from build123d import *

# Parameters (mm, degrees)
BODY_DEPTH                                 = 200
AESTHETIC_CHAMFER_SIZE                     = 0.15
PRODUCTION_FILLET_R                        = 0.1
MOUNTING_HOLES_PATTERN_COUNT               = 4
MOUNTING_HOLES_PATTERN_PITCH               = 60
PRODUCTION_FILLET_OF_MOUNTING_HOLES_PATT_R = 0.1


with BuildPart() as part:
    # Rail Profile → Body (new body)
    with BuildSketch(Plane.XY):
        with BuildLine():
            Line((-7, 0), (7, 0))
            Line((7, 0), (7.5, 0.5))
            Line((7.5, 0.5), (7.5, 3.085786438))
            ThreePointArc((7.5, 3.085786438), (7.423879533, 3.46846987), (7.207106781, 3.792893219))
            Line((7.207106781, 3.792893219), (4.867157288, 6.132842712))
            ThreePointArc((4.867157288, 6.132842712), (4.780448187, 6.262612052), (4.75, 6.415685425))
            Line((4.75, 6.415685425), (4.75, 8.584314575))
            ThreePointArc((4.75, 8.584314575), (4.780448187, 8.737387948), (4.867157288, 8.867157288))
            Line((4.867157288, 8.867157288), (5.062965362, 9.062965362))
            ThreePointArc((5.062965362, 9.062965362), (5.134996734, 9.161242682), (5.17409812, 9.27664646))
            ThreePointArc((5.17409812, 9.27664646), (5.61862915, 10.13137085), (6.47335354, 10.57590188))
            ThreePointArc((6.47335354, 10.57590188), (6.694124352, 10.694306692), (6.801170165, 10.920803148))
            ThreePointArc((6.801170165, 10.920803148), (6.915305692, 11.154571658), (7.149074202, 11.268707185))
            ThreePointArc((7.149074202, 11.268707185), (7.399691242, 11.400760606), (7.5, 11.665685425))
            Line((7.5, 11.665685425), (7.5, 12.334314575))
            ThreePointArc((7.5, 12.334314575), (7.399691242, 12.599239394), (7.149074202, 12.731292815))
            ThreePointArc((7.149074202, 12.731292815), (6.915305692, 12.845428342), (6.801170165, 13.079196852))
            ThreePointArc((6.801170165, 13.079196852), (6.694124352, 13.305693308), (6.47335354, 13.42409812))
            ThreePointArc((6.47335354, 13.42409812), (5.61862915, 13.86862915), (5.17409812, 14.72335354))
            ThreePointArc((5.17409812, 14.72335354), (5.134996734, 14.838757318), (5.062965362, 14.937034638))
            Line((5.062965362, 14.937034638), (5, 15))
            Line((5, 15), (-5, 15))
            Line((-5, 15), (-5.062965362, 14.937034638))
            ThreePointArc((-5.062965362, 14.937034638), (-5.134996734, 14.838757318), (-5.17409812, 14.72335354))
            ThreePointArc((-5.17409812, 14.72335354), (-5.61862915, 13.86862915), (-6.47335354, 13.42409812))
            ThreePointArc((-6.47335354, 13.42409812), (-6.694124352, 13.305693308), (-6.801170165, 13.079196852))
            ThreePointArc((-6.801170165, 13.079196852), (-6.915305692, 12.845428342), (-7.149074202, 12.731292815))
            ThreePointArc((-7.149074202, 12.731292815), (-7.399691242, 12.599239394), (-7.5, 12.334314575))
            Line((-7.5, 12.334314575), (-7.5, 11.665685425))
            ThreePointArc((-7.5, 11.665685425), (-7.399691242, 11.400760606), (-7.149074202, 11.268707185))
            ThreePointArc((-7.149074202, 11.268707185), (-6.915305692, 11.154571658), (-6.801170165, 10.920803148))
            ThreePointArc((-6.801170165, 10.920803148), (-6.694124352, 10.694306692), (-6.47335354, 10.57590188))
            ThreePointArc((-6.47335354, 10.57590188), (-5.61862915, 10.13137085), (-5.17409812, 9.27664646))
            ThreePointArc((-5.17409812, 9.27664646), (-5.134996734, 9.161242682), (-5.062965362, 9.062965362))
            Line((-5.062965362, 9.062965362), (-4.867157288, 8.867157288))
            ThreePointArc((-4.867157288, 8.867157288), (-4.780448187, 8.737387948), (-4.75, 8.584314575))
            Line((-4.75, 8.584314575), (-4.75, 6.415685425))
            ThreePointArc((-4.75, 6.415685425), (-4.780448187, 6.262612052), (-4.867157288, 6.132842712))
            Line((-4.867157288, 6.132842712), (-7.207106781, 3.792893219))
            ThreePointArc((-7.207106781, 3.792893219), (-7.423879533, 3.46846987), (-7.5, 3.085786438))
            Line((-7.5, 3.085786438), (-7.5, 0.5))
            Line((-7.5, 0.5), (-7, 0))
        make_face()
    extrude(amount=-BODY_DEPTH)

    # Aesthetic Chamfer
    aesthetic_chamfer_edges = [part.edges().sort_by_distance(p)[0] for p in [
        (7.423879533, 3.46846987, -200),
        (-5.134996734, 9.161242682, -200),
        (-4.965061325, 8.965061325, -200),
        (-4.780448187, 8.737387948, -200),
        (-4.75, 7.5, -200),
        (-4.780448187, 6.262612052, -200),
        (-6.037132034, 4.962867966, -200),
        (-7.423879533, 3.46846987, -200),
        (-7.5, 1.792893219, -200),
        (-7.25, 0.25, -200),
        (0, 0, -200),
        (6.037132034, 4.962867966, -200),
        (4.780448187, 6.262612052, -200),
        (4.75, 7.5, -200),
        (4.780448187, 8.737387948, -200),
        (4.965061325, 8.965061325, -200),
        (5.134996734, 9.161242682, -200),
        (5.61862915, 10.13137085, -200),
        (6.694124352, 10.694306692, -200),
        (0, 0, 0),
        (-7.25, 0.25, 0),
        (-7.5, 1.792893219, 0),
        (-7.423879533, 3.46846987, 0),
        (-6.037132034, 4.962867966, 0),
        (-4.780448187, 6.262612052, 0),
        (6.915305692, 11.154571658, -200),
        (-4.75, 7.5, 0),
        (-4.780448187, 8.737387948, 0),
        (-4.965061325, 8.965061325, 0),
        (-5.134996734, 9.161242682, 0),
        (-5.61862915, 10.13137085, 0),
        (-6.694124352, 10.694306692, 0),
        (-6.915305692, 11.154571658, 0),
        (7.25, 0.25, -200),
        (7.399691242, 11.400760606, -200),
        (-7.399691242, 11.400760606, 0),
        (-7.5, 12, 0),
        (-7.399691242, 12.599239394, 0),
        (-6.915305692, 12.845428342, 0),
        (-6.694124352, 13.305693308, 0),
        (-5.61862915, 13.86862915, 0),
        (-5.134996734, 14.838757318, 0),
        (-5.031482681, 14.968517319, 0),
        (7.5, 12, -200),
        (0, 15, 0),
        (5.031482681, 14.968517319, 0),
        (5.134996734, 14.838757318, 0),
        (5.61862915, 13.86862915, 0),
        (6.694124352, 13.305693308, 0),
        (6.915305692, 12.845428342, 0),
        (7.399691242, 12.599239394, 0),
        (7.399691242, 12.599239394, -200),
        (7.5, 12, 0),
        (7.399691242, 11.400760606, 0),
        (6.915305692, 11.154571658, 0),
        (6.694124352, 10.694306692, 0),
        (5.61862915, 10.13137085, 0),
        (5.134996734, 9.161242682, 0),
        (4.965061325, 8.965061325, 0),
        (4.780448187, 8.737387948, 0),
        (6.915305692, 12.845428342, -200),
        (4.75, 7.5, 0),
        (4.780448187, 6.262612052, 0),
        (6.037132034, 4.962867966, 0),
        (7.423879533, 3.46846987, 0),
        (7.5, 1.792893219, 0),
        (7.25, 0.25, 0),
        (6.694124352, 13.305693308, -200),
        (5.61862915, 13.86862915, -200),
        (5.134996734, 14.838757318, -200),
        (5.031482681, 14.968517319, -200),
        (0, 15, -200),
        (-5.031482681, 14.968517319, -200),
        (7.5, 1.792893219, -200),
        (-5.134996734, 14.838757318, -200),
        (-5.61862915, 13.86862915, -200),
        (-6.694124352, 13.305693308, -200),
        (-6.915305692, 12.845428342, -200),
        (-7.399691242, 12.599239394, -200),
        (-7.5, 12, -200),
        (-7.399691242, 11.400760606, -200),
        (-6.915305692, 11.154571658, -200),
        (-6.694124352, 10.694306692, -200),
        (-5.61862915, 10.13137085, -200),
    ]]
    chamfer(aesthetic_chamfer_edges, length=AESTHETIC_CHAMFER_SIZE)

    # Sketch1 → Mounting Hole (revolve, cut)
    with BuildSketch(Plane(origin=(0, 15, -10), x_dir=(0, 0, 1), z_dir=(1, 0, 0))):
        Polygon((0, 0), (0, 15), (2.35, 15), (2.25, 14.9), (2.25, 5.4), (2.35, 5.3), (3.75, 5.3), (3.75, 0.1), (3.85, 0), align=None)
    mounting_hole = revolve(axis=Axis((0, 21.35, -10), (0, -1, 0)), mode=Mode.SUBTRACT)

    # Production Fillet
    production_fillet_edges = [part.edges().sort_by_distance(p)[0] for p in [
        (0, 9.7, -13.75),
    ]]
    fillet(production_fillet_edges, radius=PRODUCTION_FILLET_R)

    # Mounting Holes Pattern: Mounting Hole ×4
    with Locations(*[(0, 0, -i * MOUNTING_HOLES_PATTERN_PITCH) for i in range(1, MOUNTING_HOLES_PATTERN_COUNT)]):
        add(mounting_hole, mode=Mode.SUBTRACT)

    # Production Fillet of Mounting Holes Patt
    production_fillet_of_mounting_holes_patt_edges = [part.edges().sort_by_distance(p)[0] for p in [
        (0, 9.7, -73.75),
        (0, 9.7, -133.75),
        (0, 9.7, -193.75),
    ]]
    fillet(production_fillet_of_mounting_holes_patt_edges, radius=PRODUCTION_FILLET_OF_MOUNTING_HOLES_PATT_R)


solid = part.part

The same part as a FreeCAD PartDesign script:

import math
import FreeCAD as App
import Part
import Sketcher
Q = App.Units.Quantity


def edges_at(feature, points):
    """Names of the edges that pass closest to the given points."""
    edges = feature.Shape.Edges
    near = lambda p: min(range(len(edges)), key=lambda i: edges[i].distToShape(Part.Vertex(*p))[0])
    return sorted({f"Edge{near(p) + 1}" for p in points})

doc = App.newDocument("Part")
body = doc.addObject("PartDesign::Body", "Body")

# Sketch on XY plane
sketch1 = body.newObject("Sketcher::SketchObject", "Sketch")
sketch1.AttachmentSupport = (doc.getObject("XY_Plane"), [""])
sketch1.MapMode = "FlatFace"
sketch1.addGeometry([
    Part.LineSegment(App.Vector(-7, 0, 0), App.Vector(7, 0, 0)),  # 0
    Part.LineSegment(App.Vector(7, 0, 0), App.Vector(7.5, 0.5, 0)),  # 1
    Part.LineSegment(App.Vector(7.5, 0.5, 0), App.Vector(7.5, 3.09, 0)),  # 2
    Part.ArcOfCircle(Part.Circle(App.Vector(6.5, 3.09, 0), App.Vector(0, 0, 1), 1), math.radians(0), math.radians(45)),  # 3
    Part.LineSegment(App.Vector(7.21, 3.79, 0), App.Vector(4.87, 6.13, 0)),  # 4
    Part.ArcOfCircle(Part.Circle(App.Vector(5.15, 6.42, 0), App.Vector(0, 0, 1), 0.4), math.radians(180), math.radians(225)),  # 5
    Part.LineSegment(App.Vector(4.75, 6.42, 0), App.Vector(4.75, 8.58, 0)),  # 6
    Part.ArcOfCircle(Part.Circle(App.Vector(5.15, 8.58, 0), App.Vector(0, 0, 1), 0.4), math.radians(135), math.radians(180)),  # 7
    Part.LineSegment(App.Vector(4.87, 8.87, 0), App.Vector(5.06, 9.06, 0)),  # 8
    Part.ArcOfCircle(Part.Circle(App.Vector(4.78, 9.35, 0), App.Vector(0, 0, 1), 0.4), math.radians(-45), math.radians(-10)),  # 9
    Part.ArcOfCircle(Part.Circle(App.Vector(6.75, 9, 0), App.Vector(0, 0, 1), 1.6), math.radians(100), math.radians(170)),  # 10
    Part.ArcOfCircle(Part.Circle(App.Vector(6.4, 10.97, 0), App.Vector(0, 0, 1), 0.4), math.radians(-80), math.radians(-7)),  # 11
    Part.ArcOfCircle(Part.Circle(App.Vector(7.2, 10.87, 0), App.Vector(0, 0, 1), 0.4), math.radians(97), math.radians(173)),  # 12
    Part.ArcOfCircle(Part.Circle(App.Vector(7.1, 11.67, 0), App.Vector(0, 0, 1), 0.4), math.radians(-83), math.radians(0)),  # 13
    Part.LineSegment(App.Vector(7.5, 11.67, 0), App.Vector(7.5, 12.33, 0)),  # 14
    Part.ArcOfCircle(Part.Circle(App.Vector(7.1, 12.33, 0), App.Vector(0, 0, 1), 0.4), math.radians(0), math.radians(83)),  # 15
    Part.ArcOfCircle(Part.Circle(App.Vector(7.2, 13.13, 0), App.Vector(0, 0, 1), 0.4), math.radians(-173), math.radians(-97)),  # 16
    Part.ArcOfCircle(Part.Circle(App.Vector(6.4, 13.03, 0), App.Vector(0, 0, 1), 0.4), math.radians(7), math.radians(80)),  # 17
    Part.ArcOfCircle(Part.Circle(App.Vector(6.75, 15, 0), App.Vector(0, 0, 1), 1.6), math.radians(-170), math.radians(-100)),  # 18
    Part.ArcOfCircle(Part.Circle(App.Vector(4.78, 14.65, 0), App.Vector(0, 0, 1), 0.4), math.radians(10), math.radians(45)),  # 19
    Part.LineSegment(App.Vector(5.06, 14.94, 0), App.Vector(5, 15, 0)),  # 20
    Part.LineSegment(App.Vector(5, 15, 0), App.Vector(-5, 15, 0)),  # 21
    Part.LineSegment(App.Vector(-5, 15, 0), App.Vector(-5.06, 14.94, 0)),  # 22
    Part.ArcOfCircle(Part.Circle(App.Vector(-4.78, 14.65, 0), App.Vector(0, 0, 1), 0.4), math.radians(135), math.radians(170)),  # 23
    Part.ArcOfCircle(Part.Circle(App.Vector(-6.75, 15, 0), App.Vector(0, 0, 1), 1.6), math.radians(-80), math.radians(-10)),  # 24
    Part.ArcOfCircle(Part.Circle(App.Vector(-6.4, 13.03, 0), App.Vector(0, 0, 1), 0.4), math.radians(100), math.radians(173)),  # 25
    Part.ArcOfCircle(Part.Circle(App.Vector(-7.2, 13.13, 0), App.Vector(0, 0, 1), 0.4), math.radians(-83), math.radians(-7)),  # 26
    Part.ArcOfCircle(Part.Circle(App.Vector(-7.1, 12.33, 0), App.Vector(0, 0, 1), 0.4), math.radians(97), math.radians(180)),  # 27
    Part.LineSegment(App.Vector(-7.5, 12.33, 0), App.Vector(-7.5, 11.67, 0)),  # 28
    Part.ArcOfCircle(Part.Circle(App.Vector(-7.1, 11.67, 0), App.Vector(0, 0, 1), 0.4), math.radians(180), math.radians(263)),  # 29
    Part.ArcOfCircle(Part.Circle(App.Vector(-7.2, 10.87, 0), App.Vector(0, 0, 1), 0.4), math.radians(7), math.radians(83)),  # 30
    Part.ArcOfCircle(Part.Circle(App.Vector(-6.4, 10.97, 0), App.Vector(0, 0, 1), 0.4), math.radians(-173), math.radians(-100)),  # 31
    Part.ArcOfCircle(Part.Circle(App.Vector(-6.75, 9, 0), App.Vector(0, 0, 1), 1.6), math.radians(10), math.radians(80)),  # 32
    Part.ArcOfCircle(Part.Circle(App.Vector(-4.78, 9.35, 0), App.Vector(0, 0, 1), 0.4), math.radians(-170), math.radians(-135)),  # 33
    Part.LineSegment(App.Vector(-5.06, 9.06, 0), App.Vector(-4.87, 8.87, 0)),  # 34
    Part.ArcOfCircle(Part.Circle(App.Vector(-5.15, 8.58, 0), App.Vector(0, 0, 1), 0.4), math.radians(0), math.radians(45)),  # 35
    Part.LineSegment(App.Vector(-4.75, 8.58, 0), App.Vector(-4.75, 6.42, 0)),  # 36
    Part.ArcOfCircle(Part.Circle(App.Vector(-5.15, 6.42, 0), App.Vector(0, 0, 1), 0.4), math.radians(-45), math.radians(0)),  # 37
    Part.LineSegment(App.Vector(-4.87, 6.13, 0), App.Vector(-7.21, 3.79, 0)),  # 38
    Part.ArcOfCircle(Part.Circle(App.Vector(-6.5, 3.09, 0), App.Vector(0, 0, 1), 1), math.radians(135), math.radians(180)),  # 39
    Part.LineSegment(App.Vector(-7.5, 3.09, 0), App.Vector(-7.5, 0.5, 0)),  # 40
    Part.LineSegment(App.Vector(-7.5, 0.5, 0), App.Vector(-7, 0, 0)),  # 41
], False)
sketch1.addConstraint([
    Sketcher.Constraint("Coincident", 0, 2, 1, 1),
    Sketcher.Constraint("Coincident", 1, 2, 2, 1),
    Sketcher.Constraint("Tangent", 2, 2, 3, 1),
    Sketcher.Constraint("Tangent", 3, 2, 4, 1),
    Sketcher.Constraint("Tangent", 4, 2, 5, 2),
    Sketcher.Constraint("Tangent", 5, 1, 6, 1),
    Sketcher.Constraint("Tangent", 6, 2, 7, 2),
    Sketcher.Constraint("Tangent", 7, 1, 8, 1),
    Sketcher.Constraint("Tangent", 8, 2, 9, 1),
    Sketcher.Constraint("Tangent", 9, 2, 10, 2),
    Sketcher.Constraint("Tangent", 10, 1, 11, 1),
    Sketcher.Constraint("Tangent", 11, 2, 12, 2),
    Sketcher.Constraint("Tangent", 12, 1, 13, 1),
    Sketcher.Constraint("Tangent", 13, 2, 14, 1),
    Sketcher.Constraint("Tangent", 14, 2, 15, 1),
    Sketcher.Constraint("Tangent", 15, 2, 16, 2),
    Sketcher.Constraint("Tangent", 16, 1, 17, 1),
    Sketcher.Constraint("Tangent", 17, 2, 18, 2),
    Sketcher.Constraint("Tangent", 18, 1, 19, 1),
    Sketcher.Constraint("Tangent", 19, 2, 20, 1),
    Sketcher.Constraint("Coincident", 20, 2, 21, 1),
    Sketcher.Constraint("Coincident", 21, 2, 22, 1),
    Sketcher.Constraint("Tangent", 22, 2, 23, 1),
    Sketcher.Constraint("Tangent", 23, 2, 24, 2),
    Sketcher.Constraint("Tangent", 24, 1, 25, 1),
    Sketcher.Constraint("Tangent", 25, 2, 26, 2),
    Sketcher.Constraint("Tangent", 26, 1, 27, 1),
    Sketcher.Constraint("Tangent", 27, 2, 28, 1),
    Sketcher.Constraint("Tangent", 28, 2, 29, 1),
    Sketcher.Constraint("Tangent", 29, 2, 30, 2),
    Sketcher.Constraint("Tangent", 30, 1, 31, 1),
    Sketcher.Constraint("Tangent", 31, 2, 32, 2),
    Sketcher.Constraint("Tangent", 32, 1, 33, 1),
    Sketcher.Constraint("Tangent", 33, 2, 34, 1),
    Sketcher.Constraint("Tangent", 34, 2, 35, 2),
    Sketcher.Constraint("Tangent", 35, 1, 36, 1),
    Sketcher.Constraint("Tangent", 36, 2, 37, 2),
    Sketcher.Constraint("Tangent", 37, 1, 38, 1),
    Sketcher.Constraint("Tangent", 38, 2, 39, 1),
    Sketcher.Constraint("Tangent", 39, 2, 40, 1),
    Sketcher.Constraint("Coincident", 40, 2, 41, 1),
    Sketcher.Constraint("Coincident", 41, 2, 0, 1),
    Sketcher.Constraint("Horizontal", 0),
    Sketcher.Constraint("Vertical", 2),
    Sketcher.Constraint("Vertical", 6),
    Sketcher.Constraint("Vertical", 14),
    Sketcher.Constraint("Horizontal", 21),
    Sketcher.Constraint("Vertical", 28),
    Sketcher.Constraint("Vertical", 36),
    Sketcher.Constraint("Vertical", 40),
    Sketcher.Constraint("Equal", 5, 7),
    Sketcher.Constraint("Equal", 7, 9),
    Sketcher.Constraint("Equal", 9, 11),
    Sketcher.Constraint("Equal", 11, 12),
    Sketcher.Constraint("Equal", 12, 13),
    Sketcher.Constraint("Equal", 13, 15),
    Sketcher.Constraint("Equal", 15, 16),
    Sketcher.Constraint("Equal", 16, 17),
    Sketcher.Constraint("Equal", 10, 18),
    Sketcher.Constraint("Equal", 17, 19),
    Sketcher.Constraint("Equal", 19, 23),
    Sketcher.Constraint("Equal", 18, 24),
    Sketcher.Constraint("Equal", 23, 25),
    Sketcher.Constraint("Equal", 25, 26),
    Sketcher.Constraint("Equal", 26, 27),
    Sketcher.Constraint("Equal", 27, 29),
    Sketcher.Constraint("Equal", 29, 30),
    Sketcher.Constraint("Equal", 30, 31),
    Sketcher.Constraint("Equal", 24, 32),
    Sketcher.Constraint("Equal", 31, 33),
    Sketcher.Constraint("Equal", 33, 35),
    Sketcher.Constraint("Equal", 35, 37),
    Sketcher.Constraint("Equal", 3, 39),
    Sketcher.Constraint("Symmetric", 0, 2, 41, 2, -1, 1),
    Sketcher.Constraint("Symmetric", 19, 3, 23, 3, -2),
    Sketcher.Constraint("Symmetric", 17, 3, 25, 3, -2),
    Sketcher.Constraint("Symmetric", 15, 3, 27, 3, -2),
    Sketcher.Constraint("Symmetric", 12, 3, 30, 3, -2),
    Sketcher.Constraint("Symmetric", 10, 3, 32, 3, -2),
    Sketcher.Constraint("Symmetric", 7, 3, 35, 3, -2),
    Sketcher.Constraint("Symmetric", 3, 3, 39, 3, -2),
    Sketcher.Constraint("Perpendicular", 1, 4),
    Sketcher.Constraint("Perpendicular", 4, 8),
    Sketcher.Constraint("Perpendicular", 8, 20),
    Sketcher.Constraint("Perpendicular", 20, 22),
    Sketcher.Constraint("Perpendicular", 22, 34),
    Sketcher.Constraint("Perpendicular", 34, 38),
    Sketcher.Constraint("Perpendicular", 38, 41),
    Sketcher.Constraint("Horizontal", 9, 3, 33, 3),
    Sketcher.Constraint("Horizontal", 24, 3, 20, 2),
    Sketcher.Constraint("Vertical", 12, 3, 16, 3),
    Sketcher.Constraint("Vertical", 11, 3, 17, 3),
    Sketcher.Constraint("Vertical", 10, 3, 18, 3),
    Sketcher.Constraint("Vertical", 9, 3, 19, 3),
    Sketcher.Constraint("Vertical", 2, 2, 13, 2),
    Sketcher.Constraint("Radius", 3, Q("1 mm")),
    Sketcher.Constraint("Radius", 5, Q("0.4 mm")),
    Sketcher.Constraint("Radius", 10, Q("1.6 mm")),
    Sketcher.Constraint("DistanceX", 0, 1, 0, 2, Q("14 mm")),
    Sketcher.Constraint("DistanceX", 21, 2, 21, 1, Q("10 mm")),
    Sketcher.Constraint("DistanceY", -1, 1, 10, 3, Q("9 mm")),
    Sketcher.Constraint("DistanceY", -1, 1, 18, 3, Q("15 mm")),
    Sketcher.Constraint("DistanceX", -1, 1, 3, 3, Q("6.5 mm")),
    Sketcher.Constraint("DistanceX", -1, 1, 5, 3, Q("5.15 mm")),
    Sketcher.Constraint("DistanceX", -1, 1, 10, 3, Q("6.75 mm")),
    Sketcher.Constraint("DistanceY", 6, 1, 6, 2, Q("2.168629 mm")),
    Sketcher.Constraint("DistanceY", 14, 1, 14, 2, Q("0.668629 mm")),
    Sketcher.Constraint("DistanceY", -1, 1, 10, 1, Q("10.575902 mm")),
])
pad1 = body.newObject("PartDesign::Pad", "Pad")
pad1.Profile = sketch1
pad1.Length = 200
pad1.Reversed = True
doc.recompute()

chamfer = body.newObject("PartDesign::Chamfer", "Chamfer")
chamfer.Base = (pad1, edges_at(pad1, [
    (7.424, 3.468, -200),
    (-5.135, 9.161, -200),
    (-4.965, 8.965, -200),
    (-4.78, 8.737, -200),
    (-4.75, 7.5, -200),
    (-4.78, 6.263, -200),
    (-6.037, 4.963, -200),
    (-7.424, 3.468, -200),
    (-7.5, 1.793, -200),
    (-7.25, 0.25, -200),
    (0, 0, -200),
    (6.037, 4.963, -200),
    (4.78, 6.263, -200),
    (4.75, 7.5, -200),
    (4.78, 8.737, -200),
    (4.965, 8.965, -200),
    (5.135, 9.161, -200),
    (5.619, 10.131, -200),
    (6.694, 10.694, -200),
    (0, 0, 0),
    (-7.25, 0.25, 0),
    (-7.5, 1.793, 0),
    (-7.424, 3.468, 0),
    (-6.037, 4.963, 0),
    (-4.78, 6.263, 0),
    (6.915, 11.155, -200),
    (-4.75, 7.5, 0),
    (-4.78, 8.737, 0),
    (-4.965, 8.965, 0),
    (-5.135, 9.161, 0),
    (-5.619, 10.131, 0),
    (-6.694, 10.694, 0),
    (-6.915, 11.155, 0),
    (7.25, 0.25, -200),
    (7.4, 11.401, -200),
    (-7.4, 11.401, 0),
    (-7.5, 12, 0),
    (-7.4, 12.599, 0),
    (-6.915, 12.845, 0),
    (-6.694, 13.306, 0),
    (-5.619, 13.869, 0),
    (-5.135, 14.839, 0),
    (-5.031, 14.969, 0),
    (7.5, 12, -200),
    (0, 15, 0),
    (5.031, 14.969, 0),
    (5.135, 14.839, 0),
    (5.619, 13.869, 0),
    (6.694, 13.306, 0),
    (6.915, 12.845, 0),
    (7.4, 12.599, 0),
    (7.4, 12.599, -200),
    (7.5, 12, 0),
    (7.4, 11.401, 0),
    (6.915, 11.155, 0),
    (6.694, 10.694, 0),
    (5.619, 10.131, 0),
    (5.135, 9.161, 0),
    (4.965, 8.965, 0),
    (4.78, 8.737, 0),
    (6.915, 12.845, -200),
    (4.75, 7.5, 0),
    (4.78, 6.263, 0),
    (6.037, 4.963, 0),
    (7.424, 3.468, 0),
    (7.5, 1.793, 0),
    (7.25, 0.25, 0),
    (6.694, 13.306, -200),
    (5.619, 13.869, -200),
    (5.135, 14.839, -200),
    (5.031, 14.969, -200),
    (0, 15, -200),
    (-5.031, 14.969, -200),
    (7.5, 1.793, -200),
    (-5.135, 14.839, -200),
    (-5.619, 13.869, -200),
    (-6.694, 13.306, -200),
    (-6.915, 12.845, -200),
    (-7.4, 12.599, -200),
    (-7.5, 12, -200),
    (-7.4, 11.401, -200),
    (-6.915, 11.155, -200),
    (-6.694, 10.694, -200),
    (-5.619, 10.131, -200),
]))
chamfer.Size = 0.15

# Sketch on YZ plane
sketch2 = body.newObject("Sketcher::SketchObject", "Sketch001")
sketch2.AttachmentSupport = (doc.getObject("YZ_Plane"), [""])
sketch2.MapMode = "FlatFace"
sketch2.addGeometry([
    Part.LineSegment(App.Vector(0, -10, 0), App.Vector(15, -10, 0)),  # 0
    Part.LineSegment(App.Vector(15, -10, 0), App.Vector(15, -6.15, 0)),  # 1
    Part.LineSegment(App.Vector(15, -6.15, 0), App.Vector(14.9, -6.25, 0)),  # 2
    Part.LineSegment(App.Vector(14.9, -6.25, 0), App.Vector(9.7, -6.25, 0)),  # 3
    Part.LineSegment(App.Vector(9.7, -6.25, 0), App.Vector(9.7, -7.65, 0)),  # 4
    Part.LineSegment(App.Vector(9.7, -7.65, 0), App.Vector(9.6, -7.75, 0)),  # 5
    Part.LineSegment(App.Vector(9.6, -7.75, 0), App.Vector(0.1, -7.75, 0)),  # 6
    Part.LineSegment(App.Vector(0.1, -7.75, 0), App.Vector(0, -7.65, 0)),  # 7
    Part.LineSegment(App.Vector(0, -7.65, 0), App.Vector(0, -10, 0)),  # 8
], False)
sketch2.addGeometry(Part.LineSegment(App.Vector(15, -10, 0), App.Vector(0, -10, 0)), True)  # axis
sketch2.addConstraint([
    Sketcher.Constraint("Coincident", 0, 2, 1, 1),
    Sketcher.Constraint("Coincident", 1, 2, 2, 1),
    Sketcher.Constraint("Coincident", 2, 2, 3, 1),
    Sketcher.Constraint("Coincident", 3, 2, 4, 1),
    Sketcher.Constraint("Coincident", 4, 2, 5, 1),
    Sketcher.Constraint("Coincident", 5, 2, 6, 1),
    Sketcher.Constraint("Coincident", 6, 2, 7, 1),
    Sketcher.Constraint("Coincident", 7, 2, 8, 1),
    Sketcher.Constraint("Coincident", 8, 2, 0, 1),
    Sketcher.Constraint("Horizontal", 0),
    Sketcher.Constraint("Vertical", 1),
    Sketcher.Constraint("Horizontal", 3),
    Sketcher.Constraint("Vertical", 4),
    Sketcher.Constraint("Horizontal", 6),
    Sketcher.Constraint("Vertical", 8),
    Sketcher.Constraint("Horizontal", 9),
    Sketcher.Constraint("Coincident", 9, 1, 0, 2),
    Sketcher.Constraint("PointOnObject", 7, 2, -2),
    Sketcher.Constraint("PointOnObject", 9, 2, -2),
    Sketcher.Constraint("Parallel", 2, 5),
    Sketcher.Constraint("Perpendicular", 5, 7),
    Sketcher.Constraint("Horizontal", 4, 2, 7, 2),
    Sketcher.Constraint("Equal", 2, 5),
    Sketcher.Constraint("Equal", 5, 7),
    Sketcher.Constraint("DistanceX", 0, 1, 0, 2, Q("15 mm")),
    Sketcher.Constraint("DistanceX", 3, 2, 3, 1, Q("5.2 mm")),
    Sketcher.Constraint("DistanceX", 6, 2, 6, 1, Q("9.5 mm")),
    Sketcher.Constraint("DistanceY", 4, 2, 4, 1, Q("1.4 mm")),
    Sketcher.Constraint("DistanceY", 0, 2, -1, 1, Q("10 mm")),
    Sketcher.Constraint("DistanceY", 1, 1, 1, 2, Q("3.85 mm")),
])
groove = body.newObject("PartDesign::Groove", "Groove")
groove.Profile = sketch2
groove.ReferenceAxis = (sketch2, ["Axis0"])
groove.Angle = 360
doc.recompute()

fillet = body.newObject("PartDesign::Fillet", "Fillet")
fillet.Base = (groove, edges_at(groove, [(0, 9.7, -13.75)]))
fillet.Radius = 0.1
doc.recompute()

linearpattern = body.newObject("PartDesign::LinearPattern", "LinearPattern")
linearpattern.Originals = [groove]
linearpattern.Direction = (doc.getObject("Z_Axis"), [""])
linearpattern.Mode = "offset"
linearpattern.Offset = 60
linearpattern.Occurrences = 4
linearpattern.Reversed = True
body.Tip = linearpattern
doc.recompute()

fillet2 = body.newObject("PartDesign::Fillet", "Fillet001")
fillet2.Base = (linearpattern, edges_at(linearpattern, [(0, 9.7, -73.75), (0, 9.7, -133.75), (0, 9.7, -193.75)]))
fillet2.Radius = 0.1

doc.recompute()
